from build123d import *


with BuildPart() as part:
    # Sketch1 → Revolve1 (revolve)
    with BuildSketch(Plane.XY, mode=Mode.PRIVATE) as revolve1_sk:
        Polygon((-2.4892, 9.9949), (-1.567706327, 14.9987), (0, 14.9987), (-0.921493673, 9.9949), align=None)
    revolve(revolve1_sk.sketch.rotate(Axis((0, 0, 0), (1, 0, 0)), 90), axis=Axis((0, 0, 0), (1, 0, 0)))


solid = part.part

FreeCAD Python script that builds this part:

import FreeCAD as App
import Part
import Sketcher
Q = App.Units.Quantity


def add_polygon(sketch, points):
    """Adds a closed chain of lines whose ends are joined by coincident constraints."""
    first, n = sketch.GeometryCount, len(points)
    for a, b in zip(points, points[1:] + points[:1]):
        sketch.addGeometry(Part.LineSegment(App.Vector(*a, 0), App.Vector(*b, 0)), False)
    for i in range(n):
        sketch.addConstraint(Sketcher.Constraint("Coincident", first + i, 2, first + (i + 1) % n, 1))

doc = App.newDocument("Part")
body = doc.addObject("PartDesign::Body", "Body")

# Sketch on XY plane
sketch1 = body.newObject("Sketcher::SketchObject", "Sketch")
sketch1.AttachmentSupport = (doc.getObject("XY_Plane"), [""])
sketch1.MapMode = "FlatFace"
add_polygon(sketch1, [(-1.6, 15), (-2.5, 10), (-0.9, 10), (0, 15)])  # lines 0-3
sketch1.addConstraint(Sketcher.Constraint("Horizontal", 1))
sketch1.addConstraint(Sketcher.Constraint("Horizontal", 3))
sketch1.addConstraint(Sketcher.Constraint("PointOnObject", 2, 2, -2))
sketch1.addConstraint(Sketcher.Constraint("Parallel", 0, 2))
sketch1.addConstraint(Sketcher.Constraint("DistanceX", 0, 2, -1, 1, Q("2.4892 mm")))
sketch1.addConstraint(Sketcher.Constraint("DistanceY", -1, 1, 0, 2, Q("9.9949 mm")))
sketch1.addConstraint(Sketcher.Constraint("DistanceY", -1, 1, 2, 2, Q("14.9987 mm")))
sketch1.addConstraint(Sketcher.Constraint("DistanceX", 1, 1, 1, 2, Q("1.567706 mm")))
revolution = body.newObject("PartDesign::Revolution", "Revolution")
revolution.Profile = sketch1
revolution.ReferenceAxis = (sketch1, ["H_Axis"])
revolution.Angle = 360

doc.recompute()
